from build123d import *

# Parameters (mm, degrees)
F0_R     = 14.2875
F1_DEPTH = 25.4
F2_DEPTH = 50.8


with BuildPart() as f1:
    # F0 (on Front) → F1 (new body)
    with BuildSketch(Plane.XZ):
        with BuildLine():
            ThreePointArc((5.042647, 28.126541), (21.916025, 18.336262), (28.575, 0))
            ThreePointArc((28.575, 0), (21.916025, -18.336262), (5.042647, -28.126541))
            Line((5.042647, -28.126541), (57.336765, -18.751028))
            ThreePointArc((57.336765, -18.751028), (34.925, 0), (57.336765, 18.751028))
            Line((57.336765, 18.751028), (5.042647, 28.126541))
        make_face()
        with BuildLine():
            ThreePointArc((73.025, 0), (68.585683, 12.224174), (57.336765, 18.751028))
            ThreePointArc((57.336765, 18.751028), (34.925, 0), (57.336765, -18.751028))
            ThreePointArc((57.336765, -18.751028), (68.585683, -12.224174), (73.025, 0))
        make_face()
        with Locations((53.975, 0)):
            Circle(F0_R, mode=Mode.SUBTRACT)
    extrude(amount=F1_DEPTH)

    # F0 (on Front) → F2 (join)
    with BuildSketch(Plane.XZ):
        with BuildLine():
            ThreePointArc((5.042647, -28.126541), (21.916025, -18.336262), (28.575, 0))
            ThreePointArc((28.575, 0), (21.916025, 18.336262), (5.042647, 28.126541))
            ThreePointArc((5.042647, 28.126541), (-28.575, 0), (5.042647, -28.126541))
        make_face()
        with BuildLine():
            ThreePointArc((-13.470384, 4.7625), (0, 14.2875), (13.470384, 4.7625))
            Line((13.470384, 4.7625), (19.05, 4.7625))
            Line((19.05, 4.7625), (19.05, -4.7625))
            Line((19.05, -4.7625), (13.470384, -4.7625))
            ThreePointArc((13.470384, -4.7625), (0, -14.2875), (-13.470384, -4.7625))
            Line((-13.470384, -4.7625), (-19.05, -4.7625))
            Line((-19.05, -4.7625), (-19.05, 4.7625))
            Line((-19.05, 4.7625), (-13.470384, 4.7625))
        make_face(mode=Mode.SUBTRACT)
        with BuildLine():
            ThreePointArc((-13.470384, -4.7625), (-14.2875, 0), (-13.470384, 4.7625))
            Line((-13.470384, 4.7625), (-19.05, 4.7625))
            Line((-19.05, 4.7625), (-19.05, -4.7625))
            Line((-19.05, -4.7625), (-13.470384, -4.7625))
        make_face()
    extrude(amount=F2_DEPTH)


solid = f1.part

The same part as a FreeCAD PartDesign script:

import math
import FreeCAD as App
import Part
import Sketcher
from FreeCAD import Vector
Q = App.Units.Quantity

doc = App.newDocument("Part")
body = doc.addObject("PartDesign::Body", "Body")

sketch1 = body.newObject("Sketcher::SketchObject", "Sketch")
sketch1.AttachmentSupport = (doc.getObject("XZ_Plane"), [""])
sketch1.MapMode = "FlatFace"
sketch1.addGeometry([
    Part.ArcOfCircle(Part.Circle(Vector(0.000003, 0.000002, 0), Vector(0, 0, 1), 28.574997), math.radians(-0.000004), math.radians(79.835756)),
    Part.ArcOfCircle(Part.Circle(Vector(0.000003, -0.000002, 0), Vector(0, 0, 1), 28.574997), math.radians(-79.835756), math.radians(0.000004)),
    Part.LineSegment(Vector(5.042647, -28.126541, 0), Vector(57.336765, -18.751028, 0)),
    Part.ArcOfCircle(Part.Circle(Vector(53.974998, 0.000001, 0), Vector(0, 0, 1), 19.050002), math.radians(-79.835746), math.radians(-0.000004)),
    Part.ArcOfCircle(Part.Circle(Vector(53.974998, -0.000001, 0), Vector(0, 0, 1), 19.050002), math.radians(0.000004), math.radians(79.835746)),
    Part.LineSegment(Vector(57.336765, 18.751028, 0), Vector(5.042647, 28.126541, 0)),
    Part.Circle(Vector(53.975, 0, 0), Vector(0, 0, 1), 14.2875),
], False)
sketch1.addConstraint([
    Sketcher.Constraint("Tangent", 0, 1, 1, 2),
    Sketcher.Constraint("Tangent", 1, 1, 2, 1),
    Sketcher.Constraint("Tangent", 2, 2, 3, 1),
    Sketcher.Constraint("Tangent", 3, 2, 4, 1),
    Sketcher.Constraint("Tangent", 4, 2, 5, 1),
    Sketcher.Constraint("Tangent", 5, 2, 0, 2),
    Sketcher.Constraint("Coincident", 0, 3, -1, 1),
    Sketcher.Constraint("Coincident", 6, 3, 3, 3),
    Sketcher.Constraint("Equal", 0, 1),
    Sketcher.Constraint("Equal", 3, 4),
    Sketcher.Constraint("PointOnObject", 3, 3, -1),
    Sketcher.Constraint("PointOnObject", 0, 1, -1),
    Sketcher.Constraint("PointOnObject", 3, 2, -1),
    Sketcher.Constraint("Radius", 3, Q("0.7500001 in")),
    Sketcher.Constraint("Diameter", 6, Q("1.125 in")),
    Sketcher.Constraint("Radius", 0, Q("1.1249999 in")),
    Sketcher.Constraint("DistanceX", 0, 1, 3, 3, Q("0.9999999 in")),
])
pad1 = body.newObject("PartDesign::Pad", "Pad")
pad1.Profile = sketch1
pad1.Length = Q("1 in")

sketch2 = body.newObject("Sketcher::SketchObject", "Sketch001")
sketch2.AttachmentSupport = (doc.getObject("XZ_Plane"), [""])
sketch2.MapMode = "FlatFace"
sketch2.addGeometry([
    Part.ArcOfCircle(Part.Circle(Vector(0.000003, -0.000002, 0), Vector(0, 0, 1), 28.574997), math.radians(-79.835756), math.radians(0.000004)),
    Part.ArcOfCircle(Part.Circle(Vector(0.000003, 0.000002, 0), Vector(0, 0, 1), 28.574997), math.radians(-0.000004), math.radians(79.835756)),
    Part.ArcOfCircle(Part.Circle(Vector(0, 0, 0), Vector(0, 0, 1), 28.575), math.radians(79.835751), math.radians(280.164249)),
    Part.ArcOfCircle(Part.Circle(Vector(0, 0, 0), Vector(0, 0, 1), 14.2875), math.radians(-160.52878), math.radians(-19.47122)),
    Part.ArcOfCircle(Part.Circle(Vector(-0.000003, 0, 0), Vector(0, 0, 1), 14.287497), math.radians(160.528775), math.radians(199.471225)),
    Part.ArcOfCircle(Part.Circle(Vector(0, 0, 0), Vector(0, 0, 1), 14.2875), math.radians(19.47122), math.radians(160.52878)),
    Part.LineSegment(Vector(13.470384, 4.7625, 0), Vector(19.05, 4.7625, 0)),
    Part.LineSegment(Vector(19.05, 4.7625, 0), Vector(19.05, -4.7625, 0)),
    Part.LineSegment(Vector(19.05, -4.7625, 0), Vector(13.470384, -4.7625, 0)),
], False)
sketch2.addConstraint([
    Sketcher.Constraint("Tangent", 0, 2, 1, 1),
    Sketcher.Constraint("Tangent", 1, 2, 2, 1),
    Sketcher.Constraint("Tangent", 2, 2, 0, 1),
    Sketcher.Constraint("Tangent", 3, 1, 4, 2),
    Sketcher.Constraint("Tangent", 4, 1, 5, 2),
    Sketcher.Constraint("Coincident", 5, 1, 6, 1),
    Sketcher.Constraint("Coincident", 6, 2, 7, 1),
    Sketcher.Constraint("Coincident", 7, 2, 8, 1),
    Sketcher.Constraint("Coincident", 8, 2, 3, 2),
    Sketcher.Constraint("Horizontal", 6),
    Sketcher.Constraint("Vertical", 7),
    Sketcher.Constraint("Horizontal", 8),
    Sketcher.Constraint("Coincident", 0, 3, -1, 1),
    Sketcher.Constraint("Coincident", 3, 3, -1, 1),
    Sketcher.Constraint("Coincident", 5, 3, -1, 1),
    Sketcher.Constraint("PointOnObject", 0, 2, -1),
    Sketcher.Constraint("Horizontal", 4, 1, 5, 1),
    Sketcher.Constraint("Horizontal", 3, 1, 7, 2),
    Sketcher.Constraint("Vertical", 1, 2, 2, 2),
    Sketcher.Constraint("Vertical", 3, 1, 4, 1),
    Sketcher.Constraint("Radius", 0, Q("1.1249999 in")),
    Sketcher.Constraint("Radius", 3, Q("0.5625 in")),
    Sketcher.Constraint("DistanceY", 7, 2, 7, 1, Q("0.375 in")),
    Sketcher.Constraint("DistanceX", -1, 1, 6, 2, Q("0.75 in")),
    Sketcher.Constraint("DistanceY", -1, 1, 1, 2, Q("28.126541 mm")),
])
pad2 = body.newObject("PartDesign::Pad", "Pad001")
pad2.Profile = sketch2
pad2.Length = Q("2 in")

doc.recompute()
